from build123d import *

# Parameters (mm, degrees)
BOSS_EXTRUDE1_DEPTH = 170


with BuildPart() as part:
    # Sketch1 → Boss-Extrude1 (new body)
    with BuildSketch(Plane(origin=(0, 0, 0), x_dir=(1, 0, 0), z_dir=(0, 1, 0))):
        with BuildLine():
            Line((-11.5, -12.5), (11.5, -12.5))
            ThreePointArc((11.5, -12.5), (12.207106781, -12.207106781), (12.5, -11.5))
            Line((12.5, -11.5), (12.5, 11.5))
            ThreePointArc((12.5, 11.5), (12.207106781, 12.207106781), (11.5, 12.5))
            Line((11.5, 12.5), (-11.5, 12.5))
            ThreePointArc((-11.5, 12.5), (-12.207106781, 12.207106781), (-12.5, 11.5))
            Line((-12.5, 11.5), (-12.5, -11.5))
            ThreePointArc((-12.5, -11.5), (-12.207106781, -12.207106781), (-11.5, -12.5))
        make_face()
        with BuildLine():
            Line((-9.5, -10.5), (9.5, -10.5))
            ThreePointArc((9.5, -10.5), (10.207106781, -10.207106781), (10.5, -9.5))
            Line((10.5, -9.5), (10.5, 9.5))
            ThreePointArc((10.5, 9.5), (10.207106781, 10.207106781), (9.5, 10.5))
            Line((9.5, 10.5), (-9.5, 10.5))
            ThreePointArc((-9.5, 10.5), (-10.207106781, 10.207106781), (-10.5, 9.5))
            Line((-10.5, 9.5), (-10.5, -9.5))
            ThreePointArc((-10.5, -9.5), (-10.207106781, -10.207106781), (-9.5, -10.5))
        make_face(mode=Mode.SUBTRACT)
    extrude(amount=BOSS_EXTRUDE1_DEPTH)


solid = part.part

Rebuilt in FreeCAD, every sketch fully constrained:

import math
import FreeCAD as App
import Part
import Sketcher
from FreeCAD import Vector
Q = App.Units.Quantity

doc = App.newDocument("Part")
body = doc.addObject("PartDesign::Body", "Body")

# Sketch on XZ plane
sketch1 = body.newObject("Sketcher::SketchObject", "Sketch")
sketch1.AttachmentSupport = (doc.getObject("XZ_Plane"), [""])
sketch1.MapMode = "FlatFace"
sketch1.addGeometry([
    Part.LineSegment(Vector(-11.5, 12.5, 0), Vector(11.5, 12.5, 0)),  # 0
    Part.ArcOfCircle(Part.Circle(Vector(11.5, 11.5, 0), Vector(0, 0, 1), 1), math.radians(0), math.radians(90)),  # 1
    Part.LineSegment(Vector(12.5, 11.5, 0), Vector(12.5, -11.5, 0)),  # 2
    Part.ArcOfCircle(Part.Circle(Vector(11.5, -11.5, 0), Vector(0, 0, 1), 1), math.radians(-90), math.radians(0)),  # 3
    Part.LineSegment(Vector(11.5, -12.5, 0), Vector(-11.5, -12.5, 0)),  # 4
    Part.ArcOfCircle(Part.Circle(Vector(-11.5, -11.5, 0), Vector(0, 0, 1), 1), math.radians(-180), math.radians(-90)),  # 5
    Part.LineSegment(Vector(-12.5, -11.5, 0), Vector(-12.5, 11.5, 0)),  # 6
    Part.ArcOfCircle(Part.Circle(Vector(-11.5, 11.5, 0), Vector(0, 0, 1), 1), math.radians(90), math.radians(180)),  # 7
    Part.LineSegment(Vector(9.5, 10.5, 0), Vector(-9.5, 10.5, 0)),  # 8
    Part.ArcOfCircle(Part.Circle(Vector(-9.5, 9.5, 0), Vector(0, 0, 1), 1), math.radians(90), math.radians(180)),  # 9
    Part.LineSegment(Vector(-10.5, 9.5, 0), Vector(-10.5, -9.5, 0)),  # 10
    Part.ArcOfCircle(Part.Circle(Vector(-9.5, -9.5, 0), Vector(0, 0, 1), 1), math.radians(-180), math.radians(-90)),  # 11
    Part.LineSegment(Vector(-9.5, -10.5, 0), Vector(9.5, -10.5, 0)),  # 12
    Part.ArcOfCircle(Part.Circle(Vector(9.5, -9.5, 0), Vector(0, 0, 1), 1), math.radians(-90), math.radians(0)),  # 13
    Part.LineSegment(Vector(10.5, -9.5, 0), Vector(10.5, 9.5, 0)),  # 14
    Part.ArcOfCircle(Part.Circle(Vector(9.5, 9.5, 0), Vector(0, 0, 1), 1), math.radians(0), math.radians(90)),  # 15
], False)
sketch1.addConstraint([
    Sketcher.Constraint("Tangent", 0, 2, 1, 2),
    Sketcher.Constraint("Tangent", 1, 1, 2, 1),
    Sketcher.Constraint("Tangent", 2, 2, 3, 2),
    Sketcher.Constraint("Tangent", 3, 1, 4, 1),
    Sketcher.Constraint("Tangent", 4, 2, 5, 2),
    Sketcher.Constraint("Tangent", 5, 1, 6, 1),
    Sketcher.Constraint("Tangent", 6, 2, 7, 2),
    Sketcher.Constraint("Tangent", 7, 1, 0, 1),
    Sketcher.Constraint("Tangent", 8, 2, 9, 1),
    Sketcher.Constraint("Tangent", 9, 2, 10, 1),
    Sketcher.Constraint("Tangent", 10, 2, 11, 1),
    Sketcher.Constraint("Tangent", 11, 2, 12, 1),
    Sketcher.Constraint("Tangent", 12, 2, 13, 1),
    Sketcher.Constraint("Tangent", 13, 2, 14, 1),
    Sketcher.Constraint("Tangent", 14, 2, 15, 1),
    Sketcher.Constraint("Tangent", 15, 2, 8, 1),
    Sketcher.Constraint("Horizontal", 0),
    Sketcher.Constraint("Vertical", 2),
    Sketcher.Constraint("Horizontal", 4),
    Sketcher.Constraint("Vertical", 6),
    Sketcher.Constraint("Horizontal", 8),
    Sketcher.Constraint("Vertical", 10),
    Sketcher.Constraint("Horizontal", 12),
    Sketcher.Constraint("Vertical", 14),
    Sketcher.Constraint("Equal", 1, 3),
    Sketcher.Constraint("Equal", 3, 5),
    Sketcher.Constraint("Equal", 5, 7),
    Sketcher.Constraint("Equal", 7, 9),
    Sketcher.Constraint("Equal", 9, 11),
    Sketcher.Constraint("Equal", 11, 13),
    Sketcher.Constraint("Equal", 13, 15),
    Sketcher.Constraint("Symmetric", 1, 3, 5, 3, -1, 1),
    Sketcher.Constraint("Symmetric", 9, 3, 13, 3, -1, 1),
    Sketcher.Constraint("Equal", 4, 2),
    Sketcher.Constraint("Equal", 12, 10),
    Sketcher.Constraint("Radius", 1, Q("1 mm")),
    Sketcher.Constraint("DistanceX", 0, 1, 0, 2, Q("23 mm")),
    Sketcher.Constraint("DistanceX", 8, 2, 8, 1, Q("19 mm")),
])
pad1 = body.newObject("PartDesign::Pad", "Pad")
pad1.Profile = sketch1
pad1.Length = 170
pad1.Reversed = True

doc.recompute()
